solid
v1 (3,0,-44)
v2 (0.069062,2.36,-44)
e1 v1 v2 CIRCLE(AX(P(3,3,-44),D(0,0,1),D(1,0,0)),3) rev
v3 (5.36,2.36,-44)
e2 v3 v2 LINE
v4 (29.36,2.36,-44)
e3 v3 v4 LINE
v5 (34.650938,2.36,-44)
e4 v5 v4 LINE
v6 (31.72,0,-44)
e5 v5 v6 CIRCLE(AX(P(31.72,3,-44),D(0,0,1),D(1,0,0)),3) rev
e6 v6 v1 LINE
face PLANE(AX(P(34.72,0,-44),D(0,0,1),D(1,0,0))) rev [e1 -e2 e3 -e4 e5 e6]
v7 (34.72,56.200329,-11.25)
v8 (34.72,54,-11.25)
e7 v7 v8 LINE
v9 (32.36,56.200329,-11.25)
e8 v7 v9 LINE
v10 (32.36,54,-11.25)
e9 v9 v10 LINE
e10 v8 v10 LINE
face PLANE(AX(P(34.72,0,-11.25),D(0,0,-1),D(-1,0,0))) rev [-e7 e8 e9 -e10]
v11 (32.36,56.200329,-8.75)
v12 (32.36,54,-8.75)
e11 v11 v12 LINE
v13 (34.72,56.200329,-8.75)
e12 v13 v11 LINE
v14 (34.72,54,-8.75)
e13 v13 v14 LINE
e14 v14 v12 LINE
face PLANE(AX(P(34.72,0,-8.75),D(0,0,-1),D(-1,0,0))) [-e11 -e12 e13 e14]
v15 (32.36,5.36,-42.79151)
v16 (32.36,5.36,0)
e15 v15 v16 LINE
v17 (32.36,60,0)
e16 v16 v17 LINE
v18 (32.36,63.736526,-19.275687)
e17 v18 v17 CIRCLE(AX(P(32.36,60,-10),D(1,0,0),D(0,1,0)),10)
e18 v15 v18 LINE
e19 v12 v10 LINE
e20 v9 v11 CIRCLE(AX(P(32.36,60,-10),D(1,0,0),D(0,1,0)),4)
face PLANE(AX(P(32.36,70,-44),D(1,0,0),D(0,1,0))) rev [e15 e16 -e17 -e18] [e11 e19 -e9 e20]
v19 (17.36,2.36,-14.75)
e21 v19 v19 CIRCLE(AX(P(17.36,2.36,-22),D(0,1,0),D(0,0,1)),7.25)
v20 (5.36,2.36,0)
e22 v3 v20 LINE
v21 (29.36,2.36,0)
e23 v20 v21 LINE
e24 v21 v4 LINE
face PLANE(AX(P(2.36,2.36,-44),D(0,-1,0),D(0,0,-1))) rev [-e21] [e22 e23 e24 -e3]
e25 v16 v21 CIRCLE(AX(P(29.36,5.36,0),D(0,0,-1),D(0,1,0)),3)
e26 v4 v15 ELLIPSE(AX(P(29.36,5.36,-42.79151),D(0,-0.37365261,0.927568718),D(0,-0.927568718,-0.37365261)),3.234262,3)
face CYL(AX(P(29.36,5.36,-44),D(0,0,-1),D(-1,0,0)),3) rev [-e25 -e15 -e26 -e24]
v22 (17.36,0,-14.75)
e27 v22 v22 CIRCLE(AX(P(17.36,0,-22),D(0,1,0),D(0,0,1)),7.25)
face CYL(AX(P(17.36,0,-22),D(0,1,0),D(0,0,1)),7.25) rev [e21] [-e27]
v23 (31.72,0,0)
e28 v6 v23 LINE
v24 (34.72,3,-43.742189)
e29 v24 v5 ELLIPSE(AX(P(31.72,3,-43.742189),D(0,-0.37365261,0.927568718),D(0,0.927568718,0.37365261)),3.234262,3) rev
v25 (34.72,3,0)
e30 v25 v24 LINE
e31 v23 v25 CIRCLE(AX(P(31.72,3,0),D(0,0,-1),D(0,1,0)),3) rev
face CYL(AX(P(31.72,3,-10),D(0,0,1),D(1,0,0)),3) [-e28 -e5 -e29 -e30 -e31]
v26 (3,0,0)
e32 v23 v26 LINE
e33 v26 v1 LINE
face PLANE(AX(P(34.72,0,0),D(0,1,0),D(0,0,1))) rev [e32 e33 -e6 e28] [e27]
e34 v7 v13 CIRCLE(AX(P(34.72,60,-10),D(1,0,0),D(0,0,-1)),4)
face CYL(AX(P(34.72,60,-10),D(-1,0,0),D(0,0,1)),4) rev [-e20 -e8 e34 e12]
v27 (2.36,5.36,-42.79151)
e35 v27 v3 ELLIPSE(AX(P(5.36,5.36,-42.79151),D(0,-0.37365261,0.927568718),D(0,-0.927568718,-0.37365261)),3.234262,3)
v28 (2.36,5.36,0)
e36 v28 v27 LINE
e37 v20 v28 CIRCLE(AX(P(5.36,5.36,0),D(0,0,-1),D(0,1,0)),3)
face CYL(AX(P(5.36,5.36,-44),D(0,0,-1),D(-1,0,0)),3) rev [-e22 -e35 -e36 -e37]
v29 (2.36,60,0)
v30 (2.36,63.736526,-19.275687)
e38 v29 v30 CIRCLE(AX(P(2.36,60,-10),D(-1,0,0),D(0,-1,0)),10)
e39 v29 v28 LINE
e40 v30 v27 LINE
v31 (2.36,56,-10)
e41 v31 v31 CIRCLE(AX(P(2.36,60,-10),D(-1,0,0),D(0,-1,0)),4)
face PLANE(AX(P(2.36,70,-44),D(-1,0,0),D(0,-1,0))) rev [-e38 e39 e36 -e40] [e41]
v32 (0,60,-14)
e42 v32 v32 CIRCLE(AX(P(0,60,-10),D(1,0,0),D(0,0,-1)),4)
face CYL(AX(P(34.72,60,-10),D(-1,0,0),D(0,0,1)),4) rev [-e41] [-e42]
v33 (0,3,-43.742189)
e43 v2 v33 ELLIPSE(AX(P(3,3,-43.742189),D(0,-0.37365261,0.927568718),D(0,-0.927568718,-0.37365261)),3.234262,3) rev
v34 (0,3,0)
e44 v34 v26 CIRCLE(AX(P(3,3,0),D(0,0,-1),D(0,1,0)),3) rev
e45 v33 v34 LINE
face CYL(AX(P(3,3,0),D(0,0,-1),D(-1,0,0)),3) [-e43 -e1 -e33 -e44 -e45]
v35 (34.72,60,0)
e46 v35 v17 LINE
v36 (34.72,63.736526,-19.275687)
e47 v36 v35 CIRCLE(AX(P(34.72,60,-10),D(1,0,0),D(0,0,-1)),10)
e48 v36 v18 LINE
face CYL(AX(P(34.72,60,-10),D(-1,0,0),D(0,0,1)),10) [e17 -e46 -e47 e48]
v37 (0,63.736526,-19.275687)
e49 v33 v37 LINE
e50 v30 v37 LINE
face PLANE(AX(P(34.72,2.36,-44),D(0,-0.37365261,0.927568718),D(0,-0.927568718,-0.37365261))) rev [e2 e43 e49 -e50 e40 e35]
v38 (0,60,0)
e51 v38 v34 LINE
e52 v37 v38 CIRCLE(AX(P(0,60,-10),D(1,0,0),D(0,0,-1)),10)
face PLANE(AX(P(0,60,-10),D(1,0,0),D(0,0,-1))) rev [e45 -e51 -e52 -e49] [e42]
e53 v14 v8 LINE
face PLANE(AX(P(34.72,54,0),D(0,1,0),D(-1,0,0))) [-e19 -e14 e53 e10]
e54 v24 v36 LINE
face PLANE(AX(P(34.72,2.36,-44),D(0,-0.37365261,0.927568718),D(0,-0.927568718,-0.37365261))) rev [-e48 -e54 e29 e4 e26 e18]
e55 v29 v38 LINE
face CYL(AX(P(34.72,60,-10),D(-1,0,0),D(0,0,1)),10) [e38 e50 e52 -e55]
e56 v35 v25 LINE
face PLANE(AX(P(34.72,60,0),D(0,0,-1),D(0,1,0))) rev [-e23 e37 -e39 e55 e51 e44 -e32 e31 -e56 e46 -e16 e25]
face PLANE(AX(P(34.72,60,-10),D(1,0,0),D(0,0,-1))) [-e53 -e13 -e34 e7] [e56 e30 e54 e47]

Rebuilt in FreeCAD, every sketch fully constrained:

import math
import FreeCAD as App
import Part
import Sketcher
from FreeCAD import Vector


def edges_at(feature, points):
    """Names of the edges that pass closest to the given points."""
    edges = feature.Shape.Edges
    near = lambda p: min(range(len(edges)), key=lambda i: edges[i].distToShape(Part.Vertex(*p))[0])
    return sorted({f"Edge{near(p) + 1}" for p in points})

doc = App.newDocument("Part")
body = doc.addObject("PartDesign::Body", "Body")

sketch1 = body.newObject("Sketcher::SketchObject", "Sketch")
sketch1.AttachmentSupport = (doc.getObject("YZ_Plane"), [""])
sketch1.MapMode = "FlatFace"
sketch1.addGeometry([
    Part.LineSegment(Vector(60, 0, 0), Vector(0, 0, 0)),
    Part.LineSegment(Vector(0, 0, 0), Vector(0, -44, 0)),
    Part.LineSegment(Vector(0, -44, 0), Vector(2.4, -44, 0)),
    Part.LineSegment(Vector(2.4, -44, 0), Vector(63.7, -19.3, 0)),
    Part.ArcOfCircle(Part.Circle(Vector(60, -10, 0), Vector(0, 0, 1), 10), math.radians(-68), math.radians(90)),
    Part.Circle(Vector(60, -10, 0), Vector(0, 0, 1), 4),
], False)
sketch1.addConstraint([
    Sketcher.Constraint("Coincident", 0, 2, 1, 1),
    Sketcher.Constraint("Coincident", 1, 2, 2, 1),
    Sketcher.Constraint("Coincident", 2, 2, 3, 1),
    Sketcher.Constraint("Tangent", 3, 2, 4, 1),
    Sketcher.Constraint("Tangent", 4, 2, 0, 1),
    Sketcher.Constraint("Horizontal", 0),
    Sketcher.Constraint("Vertical", 1),
    Sketcher.Constraint("Horizontal", 2),
    Sketcher.Constraint("Coincident", 0, 2, -1, 1),
    Sketcher.Constraint("Coincident", 5, 3, 4, 3),
    Sketcher.Constraint("Diameter", 5, 8.0),
    Sketcher.Constraint("Radius", 4, 10.0),
    Sketcher.Constraint("DistanceX", 0, 2, 0, 1, 60.0),
    Sketcher.Constraint("DistanceY", 1, 2, 1, 1, 44.0),
    Sketcher.Constraint("DistanceX", 2, 1, 2, 2, 2.36),
])
pad1 = body.newObject("PartDesign::Pad", "Pad")
pad1.Profile = sketch1
pad1.Length = 34.72

sketch2 = body.newObject("Sketcher::SketchObject", "Sketch001")
sketch2.AttachmentSupport = (doc.getObject("XY_Plane"), [""])
sketch2.MapMode = "FlatFace"
sketch2.addGeometry([
    Part.LineSegment(Vector(2, 70, 0), Vector(2, 2, 0)),
    Part.LineSegment(Vector(2, 2, 0), Vector(32, 2, 0)),
    Part.LineSegment(Vector(32, 2, 0), Vector(32, 70, 0)),
    Part.LineSegment(Vector(32, 70, 0), Vector(2, 70, 0)),
], False)
sketch2.addConstraint([
    Sketcher.Constraint("Coincident", 0, 2, 1, 1),
    Sketcher.Constraint("Coincident", 1, 2, 2, 1),
    Sketcher.Constraint("Coincident", 2, 2, 3, 1),
    Sketcher.Constraint("Coincident", 3, 2, 0, 1),
    Sketcher.Constraint("Vertical", 0),
    Sketcher.Constraint("Horizontal", 1),
    Sketcher.Constraint("Vertical", 2),
    Sketcher.Constraint("Horizontal", 3),
    Sketcher.Constraint("DistanceX", 1, 1, 1, 2, 30.0),
    Sketcher.Constraint("DistanceY", -1, 1, 2, 2, 70.0),
    Sketcher.Constraint("DistanceY", 0, 2, 0, 1, 67.64),
    Sketcher.Constraint("DistanceX", -1, 1, 0, 2, 2.36),
])
pocket1 = body.newObject("PartDesign::Pocket", "Pocket")
pocket1.Profile = sketch2
pocket1.Type = "ThroughAll"
doc.recompute()

fillet = body.newObject("PartDesign::Fillet", "Fillet")
fillet.Base = (pocket1, edges_at(pocket1, [
    (34.72, 0, -22),
    (0, 0, -22),
    (32.36, 2.36, -22),
    (2.36, 2.36, -22),
]))
fillet.Radius = 3

sketch3 = body.newObject("Sketcher::SketchObject", "Sketch002")
sketch3.AttachmentSupport = (doc.getObject("YZ_Plane"), [""])
sketch3.MapMode = "FlatFace"
sketch3.AttachmentOffset = App.Placement(Vector(0, 0, 32.36), App.Rotation())
sketch3.addGeometry([
    Part.LineSegment(Vector(54, -8.8, 0), Vector(56.2, -8.8, 0)),
    Part.ArcOfCircle(Part.Circle(Vector(60, -10, 0), Vector(0, 0, 1), 4), math.radians(162), math.radians(198)),
    Part.LineSegment(Vector(56.2, -11.2, 0), Vector(54, -11.2, 0)),
    Part.LineSegment(Vector(54, -11.2, 0), Vector(54, -8.8, 0)),
], False)
sketch3.addConstraint([
    Sketcher.Constraint("Coincident", 0, 2, 1, 1),
    Sketcher.Constraint("Coincident", 1, 2, 2, 1),
    Sketcher.Constraint("Coincident", 2, 2, 3, 1),
    Sketcher.Constraint("Coincident", 3, 2, 0, 1),
    Sketcher.Constraint("Horizontal", 0),
    Sketcher.Constraint("Horizontal", 2),
    Sketcher.Constraint("Vertical", 3),
    Sketcher.Constraint("Vertical", 0, 2, 1, 2),
    Sketcher.Constraint("Radius", 1, 4.0),
    Sketcher.Constraint("DistanceY", 3, 1, 3, 2, 2.5),
    Sketcher.Constraint("DistanceX", -1, 1, 1, 3, 60.0),
    Sketcher.Constraint("DistanceY", 1, 3, -1, 1, 10.0),
    Sketcher.Constraint("DistanceX", -1, 1, 2, 2, 54.0),
])
pocket2 = body.newObject("PartDesign::Pocket", "Pocket001")
pocket2.Profile = sketch3
pocket2.Type = "ThroughAll"
pocket2.Reversed = True

sketch4 = body.newObject("Sketcher::SketchObject", "Sketch003")
sketch4.AttachmentSupport = (doc.getObject("XZ_Plane"), [""])
sketch4.MapMode = "FlatFace"
sketch4.AttachmentOffset = App.Placement(Vector(0, 0, -2.36), App.Rotation())
sketch4.addGeometry(Part.Circle(Vector(17, -22, 0), Vector(0, 0, 1), 7), False)
sketch4.addConstraint([
    Sketcher.Constraint("Diameter", 0, 14.5),
    Sketcher.Constraint("DistanceY", 0, 3, -1, 1, 22.0),
    Sketcher.Constraint("DistanceX", -1, 1, 0, 3, 17.36),
])
pocket3 = body.newObject("PartDesign::Pocket", "Pocket002")
pocket3.Profile = sketch4
pocket3.Type = "ThroughAll"
pocket3.Reversed = True

doc.recompute()
